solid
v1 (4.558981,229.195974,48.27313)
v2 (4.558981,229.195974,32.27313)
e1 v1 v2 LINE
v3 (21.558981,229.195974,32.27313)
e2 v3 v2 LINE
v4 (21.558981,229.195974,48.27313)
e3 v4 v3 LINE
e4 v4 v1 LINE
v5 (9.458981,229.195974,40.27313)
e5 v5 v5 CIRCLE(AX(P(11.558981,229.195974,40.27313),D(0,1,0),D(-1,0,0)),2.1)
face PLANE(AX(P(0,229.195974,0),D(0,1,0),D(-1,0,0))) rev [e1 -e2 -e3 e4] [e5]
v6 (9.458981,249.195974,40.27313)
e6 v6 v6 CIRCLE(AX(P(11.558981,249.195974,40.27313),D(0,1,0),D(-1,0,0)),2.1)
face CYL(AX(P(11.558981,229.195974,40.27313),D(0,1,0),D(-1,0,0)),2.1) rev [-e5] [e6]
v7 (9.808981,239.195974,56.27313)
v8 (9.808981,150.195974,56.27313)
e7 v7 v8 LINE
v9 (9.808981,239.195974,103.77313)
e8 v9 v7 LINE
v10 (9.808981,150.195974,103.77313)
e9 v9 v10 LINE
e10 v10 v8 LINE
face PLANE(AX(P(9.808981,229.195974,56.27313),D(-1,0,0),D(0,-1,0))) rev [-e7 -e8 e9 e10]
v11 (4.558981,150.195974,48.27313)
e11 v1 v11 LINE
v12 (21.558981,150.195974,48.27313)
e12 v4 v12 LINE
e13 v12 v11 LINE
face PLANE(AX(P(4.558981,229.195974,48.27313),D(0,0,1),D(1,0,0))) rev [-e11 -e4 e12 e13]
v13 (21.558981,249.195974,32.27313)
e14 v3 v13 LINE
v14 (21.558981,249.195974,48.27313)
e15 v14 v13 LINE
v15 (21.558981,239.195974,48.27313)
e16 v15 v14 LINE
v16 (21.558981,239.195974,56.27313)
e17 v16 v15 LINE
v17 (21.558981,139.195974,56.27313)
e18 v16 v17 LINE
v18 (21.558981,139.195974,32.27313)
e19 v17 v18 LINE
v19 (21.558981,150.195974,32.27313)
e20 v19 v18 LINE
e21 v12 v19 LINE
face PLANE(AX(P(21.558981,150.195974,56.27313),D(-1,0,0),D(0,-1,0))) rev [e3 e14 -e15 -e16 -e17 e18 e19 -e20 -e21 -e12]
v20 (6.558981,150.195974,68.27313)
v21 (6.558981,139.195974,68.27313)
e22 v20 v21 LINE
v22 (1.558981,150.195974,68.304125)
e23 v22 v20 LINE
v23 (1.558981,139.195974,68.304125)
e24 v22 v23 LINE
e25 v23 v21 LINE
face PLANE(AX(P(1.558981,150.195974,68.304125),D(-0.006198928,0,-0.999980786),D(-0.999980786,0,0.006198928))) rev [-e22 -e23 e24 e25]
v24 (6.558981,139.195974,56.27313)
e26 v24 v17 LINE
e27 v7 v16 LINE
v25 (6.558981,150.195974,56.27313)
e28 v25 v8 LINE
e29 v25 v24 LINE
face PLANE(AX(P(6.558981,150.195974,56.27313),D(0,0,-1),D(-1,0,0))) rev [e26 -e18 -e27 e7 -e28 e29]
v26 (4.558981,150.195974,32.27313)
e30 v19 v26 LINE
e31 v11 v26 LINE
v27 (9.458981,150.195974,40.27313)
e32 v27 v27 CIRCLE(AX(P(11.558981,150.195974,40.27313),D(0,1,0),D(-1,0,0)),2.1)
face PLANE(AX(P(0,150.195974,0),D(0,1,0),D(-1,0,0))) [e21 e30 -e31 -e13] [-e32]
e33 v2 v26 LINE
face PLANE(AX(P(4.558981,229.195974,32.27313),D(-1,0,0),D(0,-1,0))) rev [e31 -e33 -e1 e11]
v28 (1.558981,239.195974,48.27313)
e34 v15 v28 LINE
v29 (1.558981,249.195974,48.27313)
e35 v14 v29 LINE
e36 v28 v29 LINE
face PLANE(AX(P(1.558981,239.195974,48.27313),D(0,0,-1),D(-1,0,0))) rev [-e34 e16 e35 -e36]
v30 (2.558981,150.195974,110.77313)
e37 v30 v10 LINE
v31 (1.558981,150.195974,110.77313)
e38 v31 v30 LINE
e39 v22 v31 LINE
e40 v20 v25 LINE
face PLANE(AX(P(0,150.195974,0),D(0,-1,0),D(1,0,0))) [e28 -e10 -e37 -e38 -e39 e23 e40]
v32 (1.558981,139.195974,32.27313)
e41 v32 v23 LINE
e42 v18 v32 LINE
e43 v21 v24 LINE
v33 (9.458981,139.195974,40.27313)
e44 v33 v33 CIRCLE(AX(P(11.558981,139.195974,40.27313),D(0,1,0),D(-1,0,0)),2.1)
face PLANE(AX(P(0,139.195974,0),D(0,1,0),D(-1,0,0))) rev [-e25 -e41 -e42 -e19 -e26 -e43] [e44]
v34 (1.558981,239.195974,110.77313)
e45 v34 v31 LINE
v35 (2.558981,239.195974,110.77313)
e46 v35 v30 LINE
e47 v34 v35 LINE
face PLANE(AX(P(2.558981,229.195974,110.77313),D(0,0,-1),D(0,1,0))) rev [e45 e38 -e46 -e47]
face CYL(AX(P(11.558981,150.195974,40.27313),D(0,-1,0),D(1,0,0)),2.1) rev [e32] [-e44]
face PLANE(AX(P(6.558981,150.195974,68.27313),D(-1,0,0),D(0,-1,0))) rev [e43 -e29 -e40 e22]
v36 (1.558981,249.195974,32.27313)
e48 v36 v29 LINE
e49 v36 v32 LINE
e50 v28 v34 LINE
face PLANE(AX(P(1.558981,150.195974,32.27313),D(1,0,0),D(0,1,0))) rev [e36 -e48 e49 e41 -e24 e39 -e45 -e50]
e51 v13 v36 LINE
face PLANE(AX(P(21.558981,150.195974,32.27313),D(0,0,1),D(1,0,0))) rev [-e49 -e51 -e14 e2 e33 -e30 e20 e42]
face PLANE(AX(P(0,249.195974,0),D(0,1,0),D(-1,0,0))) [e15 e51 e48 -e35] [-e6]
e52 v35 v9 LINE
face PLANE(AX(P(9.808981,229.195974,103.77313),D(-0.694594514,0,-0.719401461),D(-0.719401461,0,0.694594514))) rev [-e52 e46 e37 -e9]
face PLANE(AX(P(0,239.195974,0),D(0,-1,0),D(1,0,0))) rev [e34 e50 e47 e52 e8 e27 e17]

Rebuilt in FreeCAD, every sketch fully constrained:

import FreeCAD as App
import Part
import Sketcher
from FreeCAD import Vector


def add_polygon(sketch, points):
    """Adds a closed chain of lines whose ends are joined by coincident constraints."""
    first, n = sketch.GeometryCount, len(points)
    for a, b in zip(points, points[1:] + points[:1]):
        sketch.addGeometry(Part.LineSegment(App.Vector(*a, 0), App.Vector(*b, 0)), False)
    for i in range(n):
        sketch.addConstraint(Sketcher.Constraint("Coincident", first + i, 2, first + (i + 1) % n, 1))

doc = App.newDocument("Part")
body = doc.addObject("PartDesign::Body", "Body")

# Sketch on XZ plane
sketch1 = body.newObject("Sketcher::SketchObject", "Sketch")
sketch1.AttachmentSupport = (doc.getObject("XZ_Plane"), [""])
sketch1.MapMode = "FlatFace"
sketch1.AttachmentOffset = App.Placement(Vector(0, 0, -139.195974), App.Rotation())
add_polygon(sketch1, [(21.6, 32.3), (1.6, 32.3), (1.6, 68.3), (6.6, 68.3), (6.6, 56.3), (21.6, 56.3)])  # lines 0-5
sketch1.addGeometry(Part.Circle(Vector(11.6, 40.3, 0), Vector(0, 0, 1), 2.1), False)  # 6
sketch1.addConstraint([
    Sketcher.Constraint("Horizontal", 0),
    Sketcher.Constraint("Vertical", 1),
    Sketcher.Constraint("Vertical", 3),
    Sketcher.Constraint("Horizontal", 4),
    Sketcher.Constraint("Vertical", 5),
    Sketcher.Constraint("Diameter", 6, 4.2),
    Sketcher.Constraint("DistanceX", 0, 2, 0, 1, 20.0),
    Sketcher.Constraint("DistanceX", 4, 1, 4, 2, 15.0),
    Sketcher.Constraint("DistanceY", 3, 2, 3, 1, 12.0),
    Sketcher.Constraint("DistanceY", 5, 2, 5, 1, 24.0),
    Sketcher.Constraint("DistanceX", 0, 2, 6, 3, 10.0),
    Sketcher.Constraint("DistanceY", 0, 2, 6, 3, 8.0),
    Sketcher.Constraint("DistanceY", 1, 1, 1, 2, 36.030995),
    Sketcher.Constraint("DistanceX", -1, 1, 6, 3, 11.558981),
    Sketcher.Constraint("DistanceY", -1, 1, 6, 3, 40.27313),
])
pad1 = body.newObject("PartDesign::Pad", "Pad")
pad1.Profile = sketch1
pad1.Length = 11
pad1.Reversed = True

# Sketch on XZ plane
sketch2 = body.newObject("Sketcher::SketchObject", "Sketch001")
sketch2.AttachmentSupport = (doc.getObject("XZ_Plane"), [""])
sketch2.MapMode = "FlatFace"
sketch2.AttachmentOffset = App.Placement(Vector(0, 0, -150.195974), App.Rotation())
add_polygon(sketch2, [(4.6, 32.3), (1.6, 32.3), (1.6, 110.8), (2.6, 110.8), (9.8, 103.8), (9.8, 56.3), (21.6, 56.3), (21.6, 48.3), (4.6, 48.3)])  # lines 0-8
sketch2.addConstraint([
    Sketcher.Constraint("Horizontal", 0),
    Sketcher.Constraint("Vertical", 1),
    Sketcher.Constraint("Horizontal", 2),
    Sketcher.Constraint("Vertical", 4),
    Sketcher.Constraint("Horizontal", 5),
    Sketcher.Constraint("Vertical", 6),
    Sketcher.Constraint("Horizontal", 7),
    Sketcher.Constraint("Vertical", 8),
    Sketcher.Constraint("DistanceX", 0, 2, 0, 1, 3.0),
    Sketcher.Constraint("DistanceX", 2, 1, 2, 2, 1.0),
    Sketcher.Constraint("DistanceX", 7, 2, 7, 1, 17.0),
    Sketcher.Constraint("DistanceY", 6, 2, 6, 1, 8.0),
    Sketcher.Constraint("DistanceY", 8, 2, 8, 1, 16.0),
    Sketcher.Constraint("DistanceY", 1, 1, 1, 2, 78.5),
    Sketcher.Constraint("DistanceY", 4, 2, 4, 1, 47.5),
    Sketcher.Constraint("DistanceX", 5, 1, 5, 2, 11.75),
    Sketcher.Constraint("DistanceX", -1, 1, 0, 2, 1.558981),
    Sketcher.Constraint("DistanceY", -1, 1, 0, 2, 32.27313),
])
pad2 = body.newObject("PartDesign::Pad", "Pad001")
pad2.Profile = sketch2
pad2.Length = 79
pad2.Reversed = True
body2 = doc.addObject("PartDesign::Body", "Body001")

# Sketch on XZ plane
sketch3 = body2.newObject("Sketcher::SketchObject", "Sketch002")
sketch3.AttachmentSupport = (doc.getObject("XZ_Plane001"), [""])
sketch3.MapMode = "FlatFace"
sketch3.AttachmentOffset = App.Placement(Vector(0, 0, -239.195974), App.Rotation())
add_polygon(sketch3, [(1.6, 32.3), (1.6, 110.8), (2.6, 110.8), (9.8, 103.8), (9.8, 56.3), (21.6, 56.3), (21.6, 32.3)])  # lines 0-6
sketch3.addGeometry(Part.Circle(Vector(11.6, 40.3, 0), Vector(0, 0, 1), 2.1), False)  # 7
sketch3.addConstraint([
    Sketcher.Constraint("Vertical", 0),
    Sketcher.Constraint("Horizontal", 1),
    Sketcher.Constraint("Vertical", 3),
    Sketcher.Constraint("Horizontal", 4),
    Sketcher.Constraint("Vertical", 5),
    Sketcher.Constraint("Horizontal", 6),
    Sketcher.Constraint("Diameter", 7, 4.2),
    Sketcher.Constraint("DistanceX", 1, 1, 1, 2, 1.0),
    Sketcher.Constraint("DistanceX", 6, 2, 6, 1, 20.0),
    Sketcher.Constraint("DistanceY", 5, 2, 5, 1, 24.0),
    Sketcher.Constraint("DistanceY", 0, 1, 0, 2, 78.5),
    Sketcher.Constraint("DistanceY", 3, 2, 3, 1, 47.5),
    Sketcher.Constraint("DistanceX", 0, 2, 7, 3, 10.0),
    Sketcher.Constraint("DistanceY", 7, 3, 3, 2, 16.0),
    Sketcher.Constraint("DistanceX", 4, 1, 4, 2, 11.75),
    Sketcher.Constraint("DistanceX", -1, 1, 7, 3, 11.558981),
    Sketcher.Constraint("DistanceY", -1, 1, 7, 3, 40.27313),
])
pad3 = body2.newObject("PartDesign::Pad", "Pad002")
pad3.Profile = sketch3
pad3.Length = 10
pad3.Reversed = True
body.AllowCompound = True
doc.recompute()

boolean = body.newObject("PartDesign::Boolean", "Boolean")
boolean.Type = "Fuse"
boolean.addObjects([body2])

# Sketch on XZ plane
sketch4 = body.newObject("Sketcher::SketchObject", "Sketch003")
sketch4.AttachmentSupport = (doc.getObject("XZ_Plane"), [""])
sketch4.MapMode = "FlatFace"
sketch4.AttachmentOffset = App.Placement(Vector(0, 0, -229.195974), App.Rotation())
add_polygon(sketch4, [(1.6, 32.3), (1.6, 110.8), (2.6, 110.8), (9.8, 103.8), (9.8, 56.3), (21.6, 56.3), (21.6, 32.3)])  # lines 0-6
sketch4.addGeometry(Part.Circle(Vector(11.6, 40.3, 0), Vector(0, 0, 1), 2.1), False)  # 7
sketch4.addConstraint([
    Sketcher.Constraint("Vertical", 0),
    Sketcher.Constraint("Horizontal", 1),
    Sketcher.Constraint("Vertical", 3),
    Sketcher.Constraint("Horizontal", 4),
    Sketcher.Constraint("Vertical", 5),
    Sketcher.Constraint("Horizontal", 6),
    Sketcher.Constraint("Diameter", 7, 4.2),
    Sketcher.Constraint("DistanceX", 1, 1, 1, 2, 1.0),
    Sketcher.Constraint("DistanceX", 6, 2, 6, 1, 20.0),
    Sketcher.Constraint("DistanceY", 5, 2, 5, 1, 24.0),
    Sketcher.Constraint("DistanceY", 0, 1, 0, 2, 78.5),
    Sketcher.Constraint("DistanceY", 3, 2, 3, 1, 47.5),
    Sketcher.Constraint("DistanceX", 0, 2, 7, 3, 10.0),
    Sketcher.Constraint("DistanceY", 7, 3, 3, 2, 16.0),
    Sketcher.Constraint("DistanceX", 4, 1, 4, 2, 11.75),
    Sketcher.Constraint("DistanceX", -1, 1, 7, 3, 11.558981),
    Sketcher.Constraint("DistanceY", -1, 1, 7, 3, 40.27313),
])
pad4 = body.newObject("PartDesign::Pad", "Pad003")
pad4.Profile = sketch4
pad4.Length = 10
pad4.Reversed = True

# Sketch on XZ plane
sketch5 = body.newObject("Sketcher::SketchObject", "Sketch004")
sketch5.AttachmentSupport = (doc.getObject("XZ_Plane"), [""])
sketch5.MapMode = "FlatFace"
sketch5.AttachmentOffset = App.Placement(Vector(0, 0, -249.195974), App.Rotation())
add_polygon(sketch5, [(1.6, 48.3), (1.6, 110.8), (2.6, 110.8), (9.8, 103.8), (9.8, 56.3), (21.6, 56.3), (21.6, 48.3)])  # lines 0-6
sketch5.addConstraint([
    Sketcher.Constraint("Vertical", 0),
    Sketcher.Constraint("Horizontal", 1),
    Sketcher.Constraint("Vertical", 3),
    Sketcher.Constraint("Horizontal", 4),
    Sketcher.Constraint("Vertical", 5),
    Sketcher.Constraint("Horizontal", 6),
    Sketcher.Constraint("DistanceX", 1, 1, 1, 2, 1.0),
    Sketcher.Constraint("DistanceX", 6, 2, 6, 1, 20.0),
    Sketcher.Constraint("DistanceY", 5, 2, 5, 1, 8.0),
    Sketcher.Constraint("DistanceY", 0, 1, 0, 2, 62.5),
    Sketcher.Constraint("DistanceY", 3, 2, 3, 1, 47.5),
    Sketcher.Constraint("DistanceX", 4, 1, 4, 2, 11.75),
    Sketcher.Constraint("DistanceX", -1, 1, 0, 2, 1.558981),
    Sketcher.Constraint("DistanceY", -1, 1, 0, 2, 110.77313),
])
pocket1 = body.newObject("PartDesign::Pocket", "Pocket")
pocket1.Profile = sketch5
pocket1.Length = 10
pocket1.Reversed = True

doc.recompute()
